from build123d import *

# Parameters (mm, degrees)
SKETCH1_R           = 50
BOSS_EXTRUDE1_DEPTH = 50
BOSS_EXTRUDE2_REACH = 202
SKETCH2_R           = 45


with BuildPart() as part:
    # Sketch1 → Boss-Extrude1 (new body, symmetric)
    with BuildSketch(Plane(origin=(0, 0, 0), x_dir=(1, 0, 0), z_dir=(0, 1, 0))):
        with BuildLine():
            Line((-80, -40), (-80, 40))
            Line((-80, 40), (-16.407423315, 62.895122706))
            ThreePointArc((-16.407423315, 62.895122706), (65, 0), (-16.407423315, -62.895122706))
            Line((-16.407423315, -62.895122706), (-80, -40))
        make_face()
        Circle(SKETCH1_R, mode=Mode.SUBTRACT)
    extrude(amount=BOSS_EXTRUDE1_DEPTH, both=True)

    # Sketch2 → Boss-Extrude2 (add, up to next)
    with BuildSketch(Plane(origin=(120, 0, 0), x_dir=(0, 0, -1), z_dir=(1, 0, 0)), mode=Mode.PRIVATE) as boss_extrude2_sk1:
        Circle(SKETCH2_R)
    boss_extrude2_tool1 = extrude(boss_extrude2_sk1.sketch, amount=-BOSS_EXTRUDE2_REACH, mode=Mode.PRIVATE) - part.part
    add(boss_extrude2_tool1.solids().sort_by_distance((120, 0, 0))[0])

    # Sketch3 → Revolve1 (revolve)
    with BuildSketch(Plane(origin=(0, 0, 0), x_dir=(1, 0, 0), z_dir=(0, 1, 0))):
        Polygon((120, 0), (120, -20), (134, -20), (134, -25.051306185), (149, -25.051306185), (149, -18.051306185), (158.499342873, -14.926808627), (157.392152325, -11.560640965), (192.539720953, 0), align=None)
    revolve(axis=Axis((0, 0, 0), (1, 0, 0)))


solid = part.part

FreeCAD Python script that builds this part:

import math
import FreeCAD as App
import Part
import Sketcher

V = App.Vector

doc = App.newDocument("Part")
params = doc.addObject("Spreadsheet::Sheet", "Params")
for row, (alias, value) in enumerate([
    ("sketch1_diameter", "100 mm"),
    ("sketch1_radius", "65 mm"),
    ("sketch1_height", "80 mm"),
    ("pad1_length", "100 mm"),
    ("sketch2_diameter", "90 mm"),
    ("sketch3_width", "14 mm"),
    ("sketch3_width2", "15 mm"),
    ("sketch3_height", "20 mm"),
    ("sketch3_height2", "7 mm"),
    ("sketch3_length", "10 mm"),
    ("revolution_angle", "360 deg"),
], start=1):
    params.set(f"A{row}", alias)
    params.set(f"B{row}", "=" + value)
    params.setAlias(f"B{row}", alias)

body = doc.addObject("PartDesign::Body", "Body")

# Sketch on XZ plane
sketch1 = body.newObject("Sketcher::SketchObject", "Sketch")
sketch1.AttachmentSupport = (doc.getObject("XZ_Plane"), [""])
sketch1.MapMode = "FlatFace"
sketch1.addGeometry(Part.LineSegment(V(-80, -40, 0), V(-80, 40, 0)), False)
sketch1.addGeometry(Part.LineSegment(V(-80, 40, 0), V(-16, 63, 0)), False)
sketch1.addGeometry(Part.ArcOfCircle(Part.Circle(V(0, 0, 0), V(0, 0, 1), 65), math.radians(-105), math.radians(105)), False)
sketch1.addGeometry(Part.LineSegment(V(-16, -63, 0), V(-80, -40, 0)), False)
sketch1.addGeometry(Part.Circle(V(0, 0, 0), V(0, 0, 1), 50), False)
sketch1.addConstraint(Sketcher.Constraint("Coincident", 0, 2, 1, 1))
sketch1.addConstraint(Sketcher.Constraint("Coincident", 1, 2, 2, 2))
sketch1.addConstraint(Sketcher.Constraint("Coincident", 2, 1, 3, 1))
sketch1.addConstraint(Sketcher.Constraint("Coincident", 3, 2, 0, 1))
sketch1.addConstraint(Sketcher.Constraint("Vertical", 0))
sketch1.addConstraint(Sketcher.Constraint("Coincident", 2, 3, -1, 1))
sketch1.addConstraint(Sketcher.Constraint("Coincident", 4, 3, -1, 1))
sketch1.addConstraint(Sketcher.Constraint("Vertical", 1, 2, 2, 1))
sketch1.addConstraint(Sketcher.Constraint("Equal", 1, 3))
sketch1.addConstraint(Sketcher.Constraint("Diameter", 4, 100.0))
sketch1.addConstraint(Sketcher.Constraint("Radius", 2, 65.0))
sketch1.addConstraint(Sketcher.Constraint("DistanceY", 0, 1, 0, 2, 80.0))
sketch1.addConstraint(Sketcher.Constraint("DistanceX", 0, 2, -1, 1, 80.0))
sketch1.addConstraint(Sketcher.Constraint("Distance", 1, 67.588479))
sketch1.setExpression("Constraints[9]", "Params.sketch1_diameter")
sketch1.setExpression("Constraints[10]", "Params.sketch1_radius")
sketch1.setExpression("Constraints[11]", "Params.sketch1_height")
pad1 = body.newObject("PartDesign::Pad", "Pad")
pad1.Profile = sketch1
pad1.setExpression("Length", "Params.pad1_length")
pad1.Midplane = True

# Sketch on YZ plane
sketch2 = body.newObject("Sketcher::SketchObject", "Sketch001")
sketch2.AttachmentSupport = (doc.getObject("YZ_Plane"), [""])
sketch2.MapMode = "FlatFace"
sketch2.AttachmentOffset = App.Placement(V(0, 0, 120), App.Rotation())
sketch2.addGeometry(Part.Circle(V(0, 0, 0), V(0, 0, 1), 45), False)
sketch2.addConstraint(Sketcher.Constraint("Coincident", 0, 3, -1, 1))
sketch2.addConstraint(Sketcher.Constraint("Diameter", 0, 90.0))
sketch2.setExpression("Constraints[1]", "Params.sketch2_diameter")
pad2 = body.newObject("PartDesign::Pad", "Pad001")
pad2.Profile = sketch2
pad2.Type = "UpToFirst"
pad2.Reversed = True

# Sketch on XZ plane
sketch3 = body.newObject("Sketcher::SketchObject", "Sketch002")
sketch3.AttachmentSupport = (doc.getObject("XZ_Plane"), [""])
sketch3.MapMode = "FlatFace"
sketch3.addGeometry(Part.LineSegment(V(120, 0, 0), V(120, 20, 0)), False)
sketch3.addGeometry(Part.LineSegment(V(120, 20, 0), V(134, 20, 0)), False)
sketch3.addGeometry(Part.LineSegment(V(134, 20, 0), V(134, 25.1, 0)), False)
sketch3.addGeometry(Part.LineSegment(V(134, 25.1, 0), V(149, 25.1, 0)), False)
sketch3.addGeometry(Part.LineSegment(V(149, 25.1, 0), V(149, 18.1, 0)), False)
sketch3.addGeometry(Part.LineSegment(V(149, 18.1, 0), V(158.5, 14.9, 0)), False)
sketch3.addGeometry(Part.LineSegment(V(158.5, 14.9, 0), V(157.4, 11.6, 0)), False)
sketch3.addGeometry(Part.LineSegment(V(157.4, 11.6, 0), V(192.5, 0, 0)), False)
sketch3.addGeometry(Part.LineSegment(V(192.5, 0, 0), V(120, 0, 0)), False)
sketch3.addConstraint(Sketcher.Constraint("Coincident", 0, 2, 1, 1))
sketch3.addConstraint(Sketcher.Constraint("Coincident", 1, 2, 2, 1))
sketch3.addConstraint(Sketcher.Constraint("Coincident", 2, 2, 3, 1))
sketch3.addConstraint(Sketcher.Constraint("Coincident", 3, 2, 4, 1))
sketch3.addConstraint(Sketcher.Constraint("Coincident", 4, 2, 5, 1))
sketch3.addConstraint(Sketcher.Constraint("Coincident", 5, 2, 6, 1))
sketch3.addConstraint(Sketcher.Constraint("Coincident", 6, 2, 7, 1))
sketch3.addConstraint(Sketcher.Constraint("Coincident", 7, 2, 8, 1))
sketch3.addConstraint(Sketcher.Constraint("Coincident", 8, 2, 0, 1))
sketch3.addConstraint(Sketcher.Constraint("Vertical", 0))
sketch3.addConstraint(Sketcher.Constraint("Horizontal", 1))
sketch3.addConstraint(Sketcher.Constraint("Vertical", 2))
sketch3.addConstraint(Sketcher.Constraint("Horizontal", 3))
sketch3.addConstraint(Sketcher.Constraint("Vertical", 4))
sketch3.addConstraint(Sketcher.Constraint("Horizontal", 8))
sketch3.addConstraint(Sketcher.Constraint("PointOnObject", 7, 2, -1))
sketch3.addConstraint(Sketcher.Constraint("Perpendicular", 5, 6))
sketch3.addConstraint(Sketcher.Constraint("Perpendicular", 6, 7))
sketch3.addConstraint(Sketcher.Constraint("DistanceX", 1, 1, 1, 2, 14.0))
sketch3.addConstraint(Sketcher.Constraint("DistanceX", 3, 1, 3, 2, 15.0))
sketch3.addConstraint(Sketcher.Constraint("DistanceY", 0, 1, 0, 2, 20.0))
sketch3.addConstraint(Sketcher.Constraint("DistanceY", 4, 2, 4, 1, 7.0))
sketch3.addConstraint(Sketcher.Constraint("Distance", 5, 10.0))
sketch3.addConstraint(Sketcher.Constraint("Distance", 7, 37.0))
sketch3.addConstraint(Sketcher.Constraint("DistanceX", -1, 1, 0, 2, 120.0))
sketch3.addConstraint(Sketcher.Constraint("DistanceX", 8, 2, 8, 1, 72.539721))
sketch3.addConstraint(Sketcher.Constraint("Distance", 6, 3.543579))
sketch3.setExpression("Constraints[18]", "Params.sketch3_width")
sketch3.setExpression("Constraints[19]", "Params.sketch3_width2")
sketch3.setExpression("Constraints[20]", "Params.sketch3_height")
sketch3.setExpression("Constraints[21]", "Params.sketch3_height2")
sketch3.setExpression("Constraints[22]", "Params.sketch3_length")
revolution = body.newObject("PartDesign::Revolution", "Revolution")
revolution.Profile = sketch3
revolution.ReferenceAxis = (sketch3, ["H_Axis"])
revolution.setExpression("Angle", "Params.revolution_angle")

doc.recompute()
